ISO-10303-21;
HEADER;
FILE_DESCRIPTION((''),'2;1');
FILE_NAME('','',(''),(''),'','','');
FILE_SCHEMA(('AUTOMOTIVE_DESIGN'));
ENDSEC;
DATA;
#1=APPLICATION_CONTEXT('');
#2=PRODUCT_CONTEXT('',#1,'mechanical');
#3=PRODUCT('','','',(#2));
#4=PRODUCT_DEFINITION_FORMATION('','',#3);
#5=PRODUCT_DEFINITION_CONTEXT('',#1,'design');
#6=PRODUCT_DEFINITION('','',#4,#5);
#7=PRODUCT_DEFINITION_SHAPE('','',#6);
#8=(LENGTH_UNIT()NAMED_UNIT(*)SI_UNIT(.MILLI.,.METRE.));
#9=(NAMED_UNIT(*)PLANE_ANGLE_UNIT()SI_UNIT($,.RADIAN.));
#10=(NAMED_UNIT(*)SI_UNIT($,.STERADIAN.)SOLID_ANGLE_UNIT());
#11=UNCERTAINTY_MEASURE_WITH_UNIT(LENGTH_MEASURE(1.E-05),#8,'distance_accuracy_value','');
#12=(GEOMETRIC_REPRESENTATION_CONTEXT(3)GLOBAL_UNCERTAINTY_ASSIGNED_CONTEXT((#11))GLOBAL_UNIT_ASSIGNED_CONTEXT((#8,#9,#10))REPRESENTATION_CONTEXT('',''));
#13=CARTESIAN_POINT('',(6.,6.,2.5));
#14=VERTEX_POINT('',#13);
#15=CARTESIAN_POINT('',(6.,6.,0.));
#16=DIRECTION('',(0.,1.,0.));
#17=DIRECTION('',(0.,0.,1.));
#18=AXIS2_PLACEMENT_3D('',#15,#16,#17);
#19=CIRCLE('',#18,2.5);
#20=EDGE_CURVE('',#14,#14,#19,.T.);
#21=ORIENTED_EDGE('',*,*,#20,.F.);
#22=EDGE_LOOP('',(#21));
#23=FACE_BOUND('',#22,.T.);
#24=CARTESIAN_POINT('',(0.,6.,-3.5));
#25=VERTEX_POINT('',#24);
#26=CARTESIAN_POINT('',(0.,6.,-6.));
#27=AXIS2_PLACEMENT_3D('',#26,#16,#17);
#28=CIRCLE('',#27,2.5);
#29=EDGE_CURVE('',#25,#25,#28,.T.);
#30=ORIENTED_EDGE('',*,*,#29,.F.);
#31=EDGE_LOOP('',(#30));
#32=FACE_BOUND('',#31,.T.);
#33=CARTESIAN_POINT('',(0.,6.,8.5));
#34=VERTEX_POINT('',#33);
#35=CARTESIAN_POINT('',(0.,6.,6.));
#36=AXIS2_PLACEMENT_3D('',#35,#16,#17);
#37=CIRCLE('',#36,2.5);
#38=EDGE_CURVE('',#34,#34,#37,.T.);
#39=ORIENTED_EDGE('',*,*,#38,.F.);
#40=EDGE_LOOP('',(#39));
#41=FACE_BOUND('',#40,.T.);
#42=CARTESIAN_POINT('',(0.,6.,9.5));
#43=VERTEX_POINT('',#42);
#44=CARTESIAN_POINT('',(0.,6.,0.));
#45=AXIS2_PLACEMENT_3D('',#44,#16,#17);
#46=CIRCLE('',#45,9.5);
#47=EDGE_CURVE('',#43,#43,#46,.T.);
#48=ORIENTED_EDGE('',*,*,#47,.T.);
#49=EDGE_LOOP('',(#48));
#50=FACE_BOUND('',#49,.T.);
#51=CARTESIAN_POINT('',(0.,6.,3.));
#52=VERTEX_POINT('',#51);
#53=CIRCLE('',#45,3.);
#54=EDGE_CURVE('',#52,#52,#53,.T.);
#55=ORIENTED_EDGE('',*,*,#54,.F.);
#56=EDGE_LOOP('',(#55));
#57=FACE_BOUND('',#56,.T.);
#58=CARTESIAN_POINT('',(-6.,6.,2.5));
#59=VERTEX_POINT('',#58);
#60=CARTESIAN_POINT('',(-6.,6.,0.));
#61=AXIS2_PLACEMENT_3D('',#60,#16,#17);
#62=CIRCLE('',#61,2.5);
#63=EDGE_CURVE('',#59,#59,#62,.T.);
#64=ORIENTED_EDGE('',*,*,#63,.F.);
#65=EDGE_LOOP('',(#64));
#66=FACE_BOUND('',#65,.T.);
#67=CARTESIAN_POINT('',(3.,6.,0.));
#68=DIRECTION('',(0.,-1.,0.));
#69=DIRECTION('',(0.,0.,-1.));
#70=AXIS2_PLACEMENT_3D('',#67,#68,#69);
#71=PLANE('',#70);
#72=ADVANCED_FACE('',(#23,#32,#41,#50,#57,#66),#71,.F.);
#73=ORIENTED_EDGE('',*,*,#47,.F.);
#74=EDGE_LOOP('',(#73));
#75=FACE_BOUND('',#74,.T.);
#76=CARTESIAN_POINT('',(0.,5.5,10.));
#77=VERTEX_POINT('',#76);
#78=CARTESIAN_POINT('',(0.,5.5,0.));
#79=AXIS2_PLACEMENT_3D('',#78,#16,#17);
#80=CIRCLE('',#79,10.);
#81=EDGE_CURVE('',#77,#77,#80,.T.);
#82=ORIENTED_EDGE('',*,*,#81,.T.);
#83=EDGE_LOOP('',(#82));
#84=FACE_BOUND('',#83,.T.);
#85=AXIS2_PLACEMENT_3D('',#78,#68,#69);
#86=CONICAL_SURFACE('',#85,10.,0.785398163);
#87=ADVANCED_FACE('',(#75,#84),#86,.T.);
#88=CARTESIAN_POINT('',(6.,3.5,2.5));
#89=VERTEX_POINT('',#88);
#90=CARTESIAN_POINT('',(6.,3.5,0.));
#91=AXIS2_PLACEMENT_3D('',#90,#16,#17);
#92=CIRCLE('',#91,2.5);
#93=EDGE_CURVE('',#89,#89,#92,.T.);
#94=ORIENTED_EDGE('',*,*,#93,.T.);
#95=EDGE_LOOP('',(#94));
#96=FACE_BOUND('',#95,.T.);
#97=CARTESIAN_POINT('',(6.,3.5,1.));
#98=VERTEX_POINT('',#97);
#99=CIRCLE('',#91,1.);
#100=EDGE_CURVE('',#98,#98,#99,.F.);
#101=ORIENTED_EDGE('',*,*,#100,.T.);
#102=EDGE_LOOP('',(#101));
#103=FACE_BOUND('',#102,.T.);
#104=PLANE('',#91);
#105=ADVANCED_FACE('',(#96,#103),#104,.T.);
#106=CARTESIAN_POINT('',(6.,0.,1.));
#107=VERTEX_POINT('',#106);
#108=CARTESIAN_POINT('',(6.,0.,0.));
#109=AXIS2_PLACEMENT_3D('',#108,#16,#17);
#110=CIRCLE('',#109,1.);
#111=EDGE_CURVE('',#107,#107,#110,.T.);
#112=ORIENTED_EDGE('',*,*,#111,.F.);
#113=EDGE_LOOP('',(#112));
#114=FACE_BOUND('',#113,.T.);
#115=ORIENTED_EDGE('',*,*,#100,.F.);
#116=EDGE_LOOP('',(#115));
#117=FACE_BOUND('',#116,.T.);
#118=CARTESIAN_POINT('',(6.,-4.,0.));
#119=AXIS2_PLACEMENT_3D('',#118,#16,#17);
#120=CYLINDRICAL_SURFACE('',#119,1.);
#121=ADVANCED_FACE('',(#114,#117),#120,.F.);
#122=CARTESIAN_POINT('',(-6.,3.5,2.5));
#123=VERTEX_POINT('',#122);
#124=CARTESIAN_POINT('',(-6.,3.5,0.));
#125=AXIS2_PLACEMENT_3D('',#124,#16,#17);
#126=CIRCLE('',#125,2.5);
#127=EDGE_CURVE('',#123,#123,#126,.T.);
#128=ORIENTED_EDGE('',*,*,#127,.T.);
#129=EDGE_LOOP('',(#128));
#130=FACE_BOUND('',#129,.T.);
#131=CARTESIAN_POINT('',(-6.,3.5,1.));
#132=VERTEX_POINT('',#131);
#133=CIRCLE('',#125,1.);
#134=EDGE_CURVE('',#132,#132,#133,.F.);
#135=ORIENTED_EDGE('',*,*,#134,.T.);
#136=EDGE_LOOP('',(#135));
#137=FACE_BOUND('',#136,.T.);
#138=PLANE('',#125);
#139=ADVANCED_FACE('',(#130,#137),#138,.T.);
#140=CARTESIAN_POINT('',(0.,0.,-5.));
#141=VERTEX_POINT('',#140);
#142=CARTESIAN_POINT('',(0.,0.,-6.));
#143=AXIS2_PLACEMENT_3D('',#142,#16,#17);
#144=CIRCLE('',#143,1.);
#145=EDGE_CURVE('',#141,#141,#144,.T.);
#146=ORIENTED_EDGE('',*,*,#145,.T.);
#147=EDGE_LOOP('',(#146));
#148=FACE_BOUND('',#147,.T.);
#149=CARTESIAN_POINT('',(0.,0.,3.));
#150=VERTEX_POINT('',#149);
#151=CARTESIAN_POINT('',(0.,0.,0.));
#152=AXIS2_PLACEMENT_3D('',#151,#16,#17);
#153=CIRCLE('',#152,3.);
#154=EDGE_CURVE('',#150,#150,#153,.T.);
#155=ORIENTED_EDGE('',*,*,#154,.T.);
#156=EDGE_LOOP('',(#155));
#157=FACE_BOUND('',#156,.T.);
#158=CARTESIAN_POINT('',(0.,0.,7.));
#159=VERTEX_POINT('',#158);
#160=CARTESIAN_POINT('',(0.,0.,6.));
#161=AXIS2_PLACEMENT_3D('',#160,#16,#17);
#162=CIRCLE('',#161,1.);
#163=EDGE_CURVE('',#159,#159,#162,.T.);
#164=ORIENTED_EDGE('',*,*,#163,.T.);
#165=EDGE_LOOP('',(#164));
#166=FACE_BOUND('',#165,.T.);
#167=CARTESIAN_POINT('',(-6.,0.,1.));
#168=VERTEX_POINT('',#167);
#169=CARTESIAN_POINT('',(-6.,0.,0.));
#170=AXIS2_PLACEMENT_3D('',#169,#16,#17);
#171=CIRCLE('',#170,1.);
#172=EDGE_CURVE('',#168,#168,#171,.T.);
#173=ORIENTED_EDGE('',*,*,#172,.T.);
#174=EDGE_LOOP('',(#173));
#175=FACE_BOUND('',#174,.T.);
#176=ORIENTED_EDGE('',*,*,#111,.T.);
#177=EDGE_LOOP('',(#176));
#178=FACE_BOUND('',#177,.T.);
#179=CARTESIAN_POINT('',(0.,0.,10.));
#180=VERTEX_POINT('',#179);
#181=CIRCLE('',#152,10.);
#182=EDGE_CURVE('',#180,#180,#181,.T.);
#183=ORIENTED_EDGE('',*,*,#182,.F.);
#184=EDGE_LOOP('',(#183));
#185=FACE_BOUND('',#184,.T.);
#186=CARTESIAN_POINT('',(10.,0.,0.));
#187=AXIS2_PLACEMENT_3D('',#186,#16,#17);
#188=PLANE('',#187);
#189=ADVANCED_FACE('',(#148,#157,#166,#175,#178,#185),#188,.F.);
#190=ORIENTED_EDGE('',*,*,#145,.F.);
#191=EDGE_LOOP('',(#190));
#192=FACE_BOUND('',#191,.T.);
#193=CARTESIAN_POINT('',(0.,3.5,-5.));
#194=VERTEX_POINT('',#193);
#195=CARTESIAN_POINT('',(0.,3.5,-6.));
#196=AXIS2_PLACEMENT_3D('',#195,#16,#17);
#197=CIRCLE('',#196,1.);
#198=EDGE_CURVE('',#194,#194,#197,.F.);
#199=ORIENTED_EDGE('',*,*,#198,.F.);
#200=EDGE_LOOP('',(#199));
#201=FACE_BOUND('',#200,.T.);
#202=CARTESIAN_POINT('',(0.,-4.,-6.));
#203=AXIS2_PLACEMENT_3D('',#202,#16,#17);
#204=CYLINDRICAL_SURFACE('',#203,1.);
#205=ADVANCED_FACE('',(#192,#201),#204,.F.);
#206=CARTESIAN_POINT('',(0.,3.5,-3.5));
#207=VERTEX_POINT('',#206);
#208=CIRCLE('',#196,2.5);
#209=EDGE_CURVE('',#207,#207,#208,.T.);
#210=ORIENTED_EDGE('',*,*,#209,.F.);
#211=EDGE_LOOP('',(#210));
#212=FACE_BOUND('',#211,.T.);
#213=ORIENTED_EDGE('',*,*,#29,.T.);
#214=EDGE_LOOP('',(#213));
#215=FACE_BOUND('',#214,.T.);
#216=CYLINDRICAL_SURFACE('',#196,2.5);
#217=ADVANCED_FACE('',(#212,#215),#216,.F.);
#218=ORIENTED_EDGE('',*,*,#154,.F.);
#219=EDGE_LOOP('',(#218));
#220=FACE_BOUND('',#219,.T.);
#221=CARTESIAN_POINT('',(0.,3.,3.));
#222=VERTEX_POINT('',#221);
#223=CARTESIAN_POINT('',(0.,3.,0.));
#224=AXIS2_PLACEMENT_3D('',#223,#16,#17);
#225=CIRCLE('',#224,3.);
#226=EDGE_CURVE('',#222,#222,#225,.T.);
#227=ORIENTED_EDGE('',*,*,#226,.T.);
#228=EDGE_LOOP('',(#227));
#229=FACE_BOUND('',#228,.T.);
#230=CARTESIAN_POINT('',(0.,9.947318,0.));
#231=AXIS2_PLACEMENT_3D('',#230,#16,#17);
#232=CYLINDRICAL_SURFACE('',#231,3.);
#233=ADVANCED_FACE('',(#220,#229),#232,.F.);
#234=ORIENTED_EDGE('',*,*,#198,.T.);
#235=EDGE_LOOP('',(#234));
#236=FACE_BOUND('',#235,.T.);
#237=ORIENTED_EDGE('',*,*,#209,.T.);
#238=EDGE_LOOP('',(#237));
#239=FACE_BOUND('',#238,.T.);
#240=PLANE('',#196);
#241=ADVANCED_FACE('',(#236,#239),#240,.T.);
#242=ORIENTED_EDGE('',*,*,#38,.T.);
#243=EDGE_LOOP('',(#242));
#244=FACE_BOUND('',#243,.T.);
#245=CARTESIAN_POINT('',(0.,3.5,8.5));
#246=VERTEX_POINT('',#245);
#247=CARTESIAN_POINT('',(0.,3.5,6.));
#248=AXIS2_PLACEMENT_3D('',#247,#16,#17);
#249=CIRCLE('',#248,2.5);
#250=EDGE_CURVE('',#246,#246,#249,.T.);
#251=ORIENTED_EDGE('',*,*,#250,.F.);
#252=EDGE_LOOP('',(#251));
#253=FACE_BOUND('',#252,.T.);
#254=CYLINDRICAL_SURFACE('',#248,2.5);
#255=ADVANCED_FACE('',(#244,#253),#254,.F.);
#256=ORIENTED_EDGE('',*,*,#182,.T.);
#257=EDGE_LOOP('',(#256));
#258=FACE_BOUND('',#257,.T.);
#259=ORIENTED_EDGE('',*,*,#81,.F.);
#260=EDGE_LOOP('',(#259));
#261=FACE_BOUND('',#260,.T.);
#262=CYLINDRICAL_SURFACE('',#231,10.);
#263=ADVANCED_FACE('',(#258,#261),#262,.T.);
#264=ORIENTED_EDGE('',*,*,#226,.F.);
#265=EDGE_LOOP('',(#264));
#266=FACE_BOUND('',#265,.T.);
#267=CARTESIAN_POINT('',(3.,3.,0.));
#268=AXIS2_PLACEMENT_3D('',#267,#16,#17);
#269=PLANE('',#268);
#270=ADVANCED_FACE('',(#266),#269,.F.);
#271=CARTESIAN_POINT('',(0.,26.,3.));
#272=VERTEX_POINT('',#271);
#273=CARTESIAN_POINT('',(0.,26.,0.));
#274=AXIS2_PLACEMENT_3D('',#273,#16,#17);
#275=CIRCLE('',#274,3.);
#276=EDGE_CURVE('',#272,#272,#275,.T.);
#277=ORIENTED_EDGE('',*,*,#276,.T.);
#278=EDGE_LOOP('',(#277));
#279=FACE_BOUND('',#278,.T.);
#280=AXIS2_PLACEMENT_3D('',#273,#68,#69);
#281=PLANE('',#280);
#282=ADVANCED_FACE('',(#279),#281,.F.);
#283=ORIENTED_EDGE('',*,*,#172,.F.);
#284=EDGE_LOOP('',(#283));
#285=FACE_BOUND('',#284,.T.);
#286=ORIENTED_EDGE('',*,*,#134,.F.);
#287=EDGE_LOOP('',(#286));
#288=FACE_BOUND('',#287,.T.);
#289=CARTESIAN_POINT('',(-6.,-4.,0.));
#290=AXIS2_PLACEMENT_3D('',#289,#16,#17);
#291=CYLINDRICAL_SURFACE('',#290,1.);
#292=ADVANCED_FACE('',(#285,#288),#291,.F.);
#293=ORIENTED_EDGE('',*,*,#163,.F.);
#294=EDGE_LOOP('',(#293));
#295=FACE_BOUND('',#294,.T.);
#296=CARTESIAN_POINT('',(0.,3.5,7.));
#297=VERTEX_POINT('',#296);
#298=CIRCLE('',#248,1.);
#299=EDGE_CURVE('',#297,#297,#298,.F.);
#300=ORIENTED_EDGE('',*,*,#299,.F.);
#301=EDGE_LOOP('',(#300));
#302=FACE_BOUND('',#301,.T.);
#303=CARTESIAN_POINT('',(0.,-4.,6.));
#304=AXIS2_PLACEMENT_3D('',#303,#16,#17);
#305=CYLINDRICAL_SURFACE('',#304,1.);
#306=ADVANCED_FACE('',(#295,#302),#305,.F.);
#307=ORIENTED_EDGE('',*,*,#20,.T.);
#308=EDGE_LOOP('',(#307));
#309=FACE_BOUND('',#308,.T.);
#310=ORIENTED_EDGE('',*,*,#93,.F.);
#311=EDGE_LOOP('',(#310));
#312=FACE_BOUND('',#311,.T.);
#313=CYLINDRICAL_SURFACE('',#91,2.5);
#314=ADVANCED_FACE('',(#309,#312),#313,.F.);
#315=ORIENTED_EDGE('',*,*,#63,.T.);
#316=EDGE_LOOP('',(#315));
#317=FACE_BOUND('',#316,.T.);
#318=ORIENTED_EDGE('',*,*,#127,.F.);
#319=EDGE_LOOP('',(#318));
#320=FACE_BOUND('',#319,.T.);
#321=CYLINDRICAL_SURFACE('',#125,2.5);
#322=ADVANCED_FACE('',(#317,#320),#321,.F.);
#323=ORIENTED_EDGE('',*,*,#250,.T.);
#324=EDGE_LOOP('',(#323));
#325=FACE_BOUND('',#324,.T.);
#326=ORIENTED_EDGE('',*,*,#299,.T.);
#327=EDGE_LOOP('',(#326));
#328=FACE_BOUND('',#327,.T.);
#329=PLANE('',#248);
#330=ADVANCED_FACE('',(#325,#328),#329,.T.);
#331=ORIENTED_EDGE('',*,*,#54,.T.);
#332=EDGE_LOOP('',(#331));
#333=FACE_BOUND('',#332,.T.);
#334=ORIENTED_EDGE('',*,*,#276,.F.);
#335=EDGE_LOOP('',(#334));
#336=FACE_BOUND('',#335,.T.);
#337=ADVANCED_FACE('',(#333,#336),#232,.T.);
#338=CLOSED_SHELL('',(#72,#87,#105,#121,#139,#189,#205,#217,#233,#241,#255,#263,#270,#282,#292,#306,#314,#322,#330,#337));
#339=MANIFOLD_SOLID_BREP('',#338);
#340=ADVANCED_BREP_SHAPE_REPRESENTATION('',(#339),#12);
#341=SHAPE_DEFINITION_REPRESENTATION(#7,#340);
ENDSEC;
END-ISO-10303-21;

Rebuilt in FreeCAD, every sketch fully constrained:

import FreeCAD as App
import Part
import Sketcher
from FreeCAD import Vector
Q = App.Units.Quantity


def add_polygon(sketch, points):
    """Adds a closed chain of lines whose ends are joined by coincident constraints."""
    first, n = sketch.GeometryCount, len(points)
    for a, b in zip(points, points[1:] + points[:1]):
        sketch.addGeometry(Part.LineSegment(App.Vector(*a, 0), App.Vector(*b, 0)), False)
    for i in range(n):
        sketch.addConstraint(Sketcher.Constraint("Coincident", first + i, 2, first + (i + 1) % n, 1))

doc = App.newDocument("Part")
params = doc.addObject("Spreadsheet::Sheet", "Params")
for row, (alias, value) in enumerate([
    ("sketch1_width", "3 mm"),
    ("sketch1_width2", "7 mm"),
    ("sketch1_height", "23 mm"),
    ("sketch1_height2", "20 mm"),
    ("sketch1_width3", "6.5 mm"),
    ("revolution_angle", "360 deg"),
    ("sketch2_diameter", "2 mm"),
    ("pocket1_length", "10 mm"),
    ("sketch3_diameter", "5 mm"),
    ("pocket2_length", "2.5 mm"),
], start=1):
    params.set(f"A{row}", alias)
    params.set(f"B{row}", "=" + value)
    params.setAlias(f"B{row}", alias)

body = doc.addObject("PartDesign::Body", "Body")

sketch1 = body.newObject("Sketcher::SketchObject", "Sketch")
sketch1.AttachmentSupport = (doc.getObject("XY_Plane"), [""])
sketch1.MapMode = "FlatFace"
add_polygon(sketch1, [(3, 26), (0, 26), (0, 3), (3, 3), (3, 0), (10, 0), (10, 5.5), (9.5, 6), (3, 6)])
sketch1.addConstraint(Sketcher.Constraint("Horizontal", 0))
sketch1.addConstraint(Sketcher.Constraint("Vertical", 1))
sketch1.addConstraint(Sketcher.Constraint("Horizontal", 2))
sketch1.addConstraint(Sketcher.Constraint("Vertical", 3))
sketch1.addConstraint(Sketcher.Constraint("Horizontal", 4))
sketch1.addConstraint(Sketcher.Constraint("Vertical", 5))
sketch1.addConstraint(Sketcher.Constraint("Horizontal", 7))
sketch1.addConstraint(Sketcher.Constraint("Vertical", 8))
sketch1.addConstraint(Sketcher.Constraint("PointOnObject", 0, 2, -2))
sketch1.addConstraint(Sketcher.Constraint("PointOnObject", 3, 2, -1))
sketch1.addConstraint(Sketcher.Constraint("Vertical", 3, 2, 7, 2))
sketch1.addConstraint(Sketcher.Constraint("Equal", 2, 3))
sketch1.addConstraint(Sketcher.Constraint("DistanceX", 0, 2, 0, 1, 3.0))
sketch1.addConstraint(Sketcher.Constraint("DistanceX", 4, 1, 4, 2, 7.0))
sketch1.addConstraint(Sketcher.Constraint("DistanceY", 1, 2, 1, 1, 23.0))
sketch1.addConstraint(Sketcher.Constraint("DistanceY", 8, 1, 8, 2, 20.0))
sketch1.addConstraint(Sketcher.Constraint("Angle", 6, Q("135 deg")))
sketch1.addConstraint(Sketcher.Constraint("DistanceX", 7, 2, 7, 1, 6.5))
sketch1.setExpression("Constraints[21]", "Params.sketch1_width")
sketch1.setExpression("Constraints[22]", "Params.sketch1_width2")
sketch1.setExpression("Constraints[23]", "Params.sketch1_height")
sketch1.setExpression("Constraints[24]", "Params.sketch1_height2")
sketch1.setExpression("Constraints[26]", "Params.sketch1_width3")
revolution = body.newObject("PartDesign::Revolution", "Revolution")
revolution.Profile = sketch1
revolution.ReferenceAxis = (sketch1, ["V_Axis"])
revolution.setExpression("Angle", "Params.revolution_angle")

sketch2 = body.newObject("Sketcher::SketchObject", "Sketch001")
sketch2.AttachmentSupport = (doc.getObject("XZ_Plane"), [""])
sketch2.MapMode = "FlatFace"
sketch2.AttachmentOffset = App.Placement(Vector(0, 0, -6), App.Rotation())
sketch2.addGeometry(Part.Circle(Vector(0, -6, 0), Vector(0, 0, 1), 1), False)
sketch2.addGeometry(Part.Circle(Vector(6, 0, 0), Vector(0, 0, 1), 1), False)
sketch2.addGeometry(Part.Circle(Vector(0, 6, 0), Vector(0, 0, 1), 1), False)
sketch2.addGeometry(Part.Circle(Vector(-6, 0, 0), Vector(0, 0, 1), 1), False)
sketch2.addConstraint(Sketcher.Constraint("Equal", 0, 1))
sketch2.addConstraint(Sketcher.Constraint("Equal", 1, 2))
sketch2.addConstraint(Sketcher.Constraint("Equal", 2, 3))
sketch2.addConstraint(Sketcher.Constraint("Symmetric", 0, 3, 2, 3, -1, 1))
sketch2.addConstraint(Sketcher.Constraint("Symmetric", 1, 3, 3, 3, -1, 1))
sketch2.addConstraint(Sketcher.Constraint("PointOnObject", 0, 3, -2))
sketch2.addConstraint(Sketcher.Constraint("PointOnObject", 1, 3, -1))
sketch2.addConstraint(Sketcher.Constraint("Diameter", 0, 2.0))
sketch2.addConstraint(Sketcher.Constraint("DistanceY", 0, 3, -1, 1, 6.0))
sketch2.addConstraint(Sketcher.Constraint("DistanceX", -1, 1, 1, 3, 6.0))
sketch2.setExpression("Constraints[7]", "Params.sketch2_diameter")
pocket1 = body.newObject("PartDesign::Pocket", "Pocket")
pocket1.Profile = sketch2
pocket1.setExpression("Length", "Params.pocket1_length")
pocket1.Reversed = True

sketch3 = body.newObject("Sketcher::SketchObject", "Sketch002")
sketch3.AttachmentSupport = (doc.getObject("XZ_Plane"), [""])
sketch3.MapMode = "FlatFace"
sketch3.AttachmentOffset = App.Placement(Vector(0, 0, -6), App.Rotation())
sketch3.addGeometry(Part.Circle(Vector(0, -6, 0), Vector(0, 0, 1), 2.5), False)
sketch3.addGeometry(Part.Circle(Vector(6, 0, 0), Vector(0, 0, 1), 2.5), False)
sketch3.addGeometry(Part.Circle(Vector(0, 6, 0), Vector(0, 0, 1), 2.5), False)
sketch3.addGeometry(Part.Circle(Vector(-6, 0, 0), Vector(0, 0, 1), 2.5), False)
sketch3.addConstraint(Sketcher.Constraint("Equal", 0, 1))
sketch3.addConstraint(Sketcher.Constraint("Equal", 1, 2))
sketch3.addConstraint(Sketcher.Constraint("Equal", 2, 3))
sketch3.addConstraint(Sketcher.Constraint("Symmetric", 0, 3, 2, 3, -1, 1))
sketch3.addConstraint(Sketcher.Constraint("Symmetric", 1, 3, 3, 3, -1, 1))
sketch3.addConstraint(Sketcher.Constraint("PointOnObject", 0, 3, -2))
sketch3.addConstraint(Sketcher.Constraint("PointOnObject", 1, 3, -1))
sketch3.addConstraint(Sketcher.Constraint("Diameter", 0, 5.0))
sketch3.addConstraint(Sketcher.Constraint("DistanceY", 0, 3, -1, 1, 6.0))
sketch3.addConstraint(Sketcher.Constraint("DistanceX", -1, 1, 1, 3, 6.0))
sketch3.setExpression("Constraints[7]", "Params.sketch3_diameter")
pocket2 = body.newObject("PartDesign::Pocket", "Pocket001")
pocket2.Profile = sketch3
pocket2.setExpression("Length", "Params.pocket2_length")
pocket2.Reversed = True

doc.recompute()
